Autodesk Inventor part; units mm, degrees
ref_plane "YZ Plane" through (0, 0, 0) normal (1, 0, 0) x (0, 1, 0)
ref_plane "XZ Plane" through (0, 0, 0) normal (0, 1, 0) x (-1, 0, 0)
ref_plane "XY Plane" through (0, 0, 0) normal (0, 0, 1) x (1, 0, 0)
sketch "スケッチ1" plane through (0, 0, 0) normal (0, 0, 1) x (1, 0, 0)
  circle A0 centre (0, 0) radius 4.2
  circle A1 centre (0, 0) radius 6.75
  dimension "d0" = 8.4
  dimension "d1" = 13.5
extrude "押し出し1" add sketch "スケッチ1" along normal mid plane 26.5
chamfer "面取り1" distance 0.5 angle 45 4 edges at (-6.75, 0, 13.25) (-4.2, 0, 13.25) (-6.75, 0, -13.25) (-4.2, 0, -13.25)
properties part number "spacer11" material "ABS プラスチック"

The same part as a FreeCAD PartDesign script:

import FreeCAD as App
import Part
import Sketcher

V = App.Vector
Q = App.Units.Quantity


def edges_at(feature, points):
    """Names of the edges that pass closest to the given points."""
    edges = feature.Shape.Edges
    near = lambda p: min(range(len(edges)), key=lambda i: edges[i].distToShape(Part.Vertex(*p))[0])
    return sorted({f"Edge{near(p) + 1}" for p in points})

doc = App.newDocument("Part")
body = doc.addObject("PartDesign::Body", "Body")

# Sketch on XY plane
sketch1 = body.newObject("Sketcher::SketchObject", "Sketch")
sketch1.AttachmentSupport = (doc.getObject("XY_Plane"), [""])
sketch1.MapMode = "FlatFace"
sketch1.addGeometry([
    Part.Circle(V(0, 0, 0), V(0, 0, 1), 6.75),
    Part.Circle(V(0, 0, 0), V(0, 0, 1), 4.2),
], False)
sketch1.addConstraint([
    Sketcher.Constraint("Coincident", 0, 3, -1, 1),
    Sketcher.Constraint("Coincident", 1, 3, -1, 1),
    Sketcher.Constraint("Diameter", 0, Q("13.5 mm")),
    Sketcher.Constraint("Diameter", 1, Q("8.4 mm")),
])
pad1 = body.newObject("PartDesign::Pad", "Pad")
pad1.Profile = sketch1
pad1.Length = 26.5
pad1.Midplane = True
doc.recompute()

chamfer = body.newObject("PartDesign::Chamfer", "Chamfer")
chamfer.Base = (pad1, edges_at(pad1, [
    (-6.75, 0, 13.25),
    (-4.2, 0, 13.25),
    (-6.75, 0, -13.25),
    (-4.2, 0, -13.25),
]))
chamfer.Size = 0.5

doc.recompute()
